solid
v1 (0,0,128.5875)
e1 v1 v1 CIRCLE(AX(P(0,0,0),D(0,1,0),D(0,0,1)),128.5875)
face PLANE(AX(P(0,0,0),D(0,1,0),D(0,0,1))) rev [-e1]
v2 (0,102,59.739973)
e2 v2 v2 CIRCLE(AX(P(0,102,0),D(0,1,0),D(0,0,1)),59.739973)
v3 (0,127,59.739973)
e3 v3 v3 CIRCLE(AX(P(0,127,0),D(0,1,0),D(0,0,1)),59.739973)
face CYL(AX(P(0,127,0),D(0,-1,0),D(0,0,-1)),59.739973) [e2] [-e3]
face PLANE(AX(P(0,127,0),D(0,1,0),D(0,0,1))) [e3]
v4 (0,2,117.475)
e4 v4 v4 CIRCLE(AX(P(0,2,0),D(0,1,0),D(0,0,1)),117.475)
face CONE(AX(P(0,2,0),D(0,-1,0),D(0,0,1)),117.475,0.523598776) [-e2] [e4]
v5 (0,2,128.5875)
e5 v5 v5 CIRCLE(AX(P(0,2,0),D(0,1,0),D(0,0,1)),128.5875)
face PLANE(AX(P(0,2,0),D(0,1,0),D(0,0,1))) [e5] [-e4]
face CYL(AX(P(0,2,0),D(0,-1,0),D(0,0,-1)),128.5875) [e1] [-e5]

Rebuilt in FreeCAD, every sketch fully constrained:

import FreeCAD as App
import Part
import Sketcher

V = App.Vector

doc = App.newDocument("Part")
body = doc.addObject("PartDesign::Body", "Body")

sketch1 = doc.addObject("Sketcher::SketchObject", "Sketch")
body.addObject(sketch1)
sketch1.AttachmentSupport = (doc.XZ_Plane, [""])
sketch1.MapMode = "FlatFace"
sketch1.addGeometry(Part.Circle(V(0, 0, 0), V(0, 0, 1), 129), False)
sketch1.addConstraint([
    Sketcher.Constraint("Coincident", 0, 3, -1, 1),
    Sketcher.Constraint("Diameter", 0, 257.175),
])
pad1 = doc.addObject("PartDesign::Pad", "Pad")
body.addObject(pad1)
pad1.Profile = sketch1
pad1.Length = 2
pad1.Reversed = True

sketch2 = doc.addObject("Sketcher::SketchObject", "Sketch001")
body.addObject(sketch2)
sketch2.AttachmentSupport = (doc.XZ_Plane, [""])
sketch2.MapMode = "FlatFace"
sketch2.AttachmentOffset = App.Placement(V(0, 0, -2), App.Rotation())
sketch2.addGeometry(Part.Circle(V(0, 0, 0), V(0, 0, 1), 117), False)
sketch2.addConstraint([
    Sketcher.Constraint("Coincident", 0, 3, -1, 1),
    Sketcher.Constraint("Diameter", 0, 234.95),
])
pad2 = doc.addObject("PartDesign::Pad", "Pad001")
body.addObject(pad2)
pad2.Profile = sketch2
pad2.Length = 100
pad2.Reversed = True
pad2.TaperAngle = -30

sketch3 = doc.addObject("Sketcher::SketchObject", "Sketch002")
body.addObject(sketch3)
sketch3.AttachmentSupport = (doc.XZ_Plane, [""])
sketch3.MapMode = "FlatFace"
sketch3.AttachmentOffset = App.Placement(V(0, 0, -102), App.Rotation())
sketch3.addGeometry(Part.Circle(V(0, 0, 0), V(0, 0, 1), 60), False)
sketch3.addConstraint([
    Sketcher.Constraint("Coincident", 0, 3, -1, 1),
    Sketcher.Constraint("Diameter", 0, 119.479946),
])
pad3 = doc.addObject("PartDesign::Pad", "Pad002")
body.addObject(pad3)
pad3.Profile = sketch3
pad3.Length = 25
pad3.Reversed = True

doc.recompute()
